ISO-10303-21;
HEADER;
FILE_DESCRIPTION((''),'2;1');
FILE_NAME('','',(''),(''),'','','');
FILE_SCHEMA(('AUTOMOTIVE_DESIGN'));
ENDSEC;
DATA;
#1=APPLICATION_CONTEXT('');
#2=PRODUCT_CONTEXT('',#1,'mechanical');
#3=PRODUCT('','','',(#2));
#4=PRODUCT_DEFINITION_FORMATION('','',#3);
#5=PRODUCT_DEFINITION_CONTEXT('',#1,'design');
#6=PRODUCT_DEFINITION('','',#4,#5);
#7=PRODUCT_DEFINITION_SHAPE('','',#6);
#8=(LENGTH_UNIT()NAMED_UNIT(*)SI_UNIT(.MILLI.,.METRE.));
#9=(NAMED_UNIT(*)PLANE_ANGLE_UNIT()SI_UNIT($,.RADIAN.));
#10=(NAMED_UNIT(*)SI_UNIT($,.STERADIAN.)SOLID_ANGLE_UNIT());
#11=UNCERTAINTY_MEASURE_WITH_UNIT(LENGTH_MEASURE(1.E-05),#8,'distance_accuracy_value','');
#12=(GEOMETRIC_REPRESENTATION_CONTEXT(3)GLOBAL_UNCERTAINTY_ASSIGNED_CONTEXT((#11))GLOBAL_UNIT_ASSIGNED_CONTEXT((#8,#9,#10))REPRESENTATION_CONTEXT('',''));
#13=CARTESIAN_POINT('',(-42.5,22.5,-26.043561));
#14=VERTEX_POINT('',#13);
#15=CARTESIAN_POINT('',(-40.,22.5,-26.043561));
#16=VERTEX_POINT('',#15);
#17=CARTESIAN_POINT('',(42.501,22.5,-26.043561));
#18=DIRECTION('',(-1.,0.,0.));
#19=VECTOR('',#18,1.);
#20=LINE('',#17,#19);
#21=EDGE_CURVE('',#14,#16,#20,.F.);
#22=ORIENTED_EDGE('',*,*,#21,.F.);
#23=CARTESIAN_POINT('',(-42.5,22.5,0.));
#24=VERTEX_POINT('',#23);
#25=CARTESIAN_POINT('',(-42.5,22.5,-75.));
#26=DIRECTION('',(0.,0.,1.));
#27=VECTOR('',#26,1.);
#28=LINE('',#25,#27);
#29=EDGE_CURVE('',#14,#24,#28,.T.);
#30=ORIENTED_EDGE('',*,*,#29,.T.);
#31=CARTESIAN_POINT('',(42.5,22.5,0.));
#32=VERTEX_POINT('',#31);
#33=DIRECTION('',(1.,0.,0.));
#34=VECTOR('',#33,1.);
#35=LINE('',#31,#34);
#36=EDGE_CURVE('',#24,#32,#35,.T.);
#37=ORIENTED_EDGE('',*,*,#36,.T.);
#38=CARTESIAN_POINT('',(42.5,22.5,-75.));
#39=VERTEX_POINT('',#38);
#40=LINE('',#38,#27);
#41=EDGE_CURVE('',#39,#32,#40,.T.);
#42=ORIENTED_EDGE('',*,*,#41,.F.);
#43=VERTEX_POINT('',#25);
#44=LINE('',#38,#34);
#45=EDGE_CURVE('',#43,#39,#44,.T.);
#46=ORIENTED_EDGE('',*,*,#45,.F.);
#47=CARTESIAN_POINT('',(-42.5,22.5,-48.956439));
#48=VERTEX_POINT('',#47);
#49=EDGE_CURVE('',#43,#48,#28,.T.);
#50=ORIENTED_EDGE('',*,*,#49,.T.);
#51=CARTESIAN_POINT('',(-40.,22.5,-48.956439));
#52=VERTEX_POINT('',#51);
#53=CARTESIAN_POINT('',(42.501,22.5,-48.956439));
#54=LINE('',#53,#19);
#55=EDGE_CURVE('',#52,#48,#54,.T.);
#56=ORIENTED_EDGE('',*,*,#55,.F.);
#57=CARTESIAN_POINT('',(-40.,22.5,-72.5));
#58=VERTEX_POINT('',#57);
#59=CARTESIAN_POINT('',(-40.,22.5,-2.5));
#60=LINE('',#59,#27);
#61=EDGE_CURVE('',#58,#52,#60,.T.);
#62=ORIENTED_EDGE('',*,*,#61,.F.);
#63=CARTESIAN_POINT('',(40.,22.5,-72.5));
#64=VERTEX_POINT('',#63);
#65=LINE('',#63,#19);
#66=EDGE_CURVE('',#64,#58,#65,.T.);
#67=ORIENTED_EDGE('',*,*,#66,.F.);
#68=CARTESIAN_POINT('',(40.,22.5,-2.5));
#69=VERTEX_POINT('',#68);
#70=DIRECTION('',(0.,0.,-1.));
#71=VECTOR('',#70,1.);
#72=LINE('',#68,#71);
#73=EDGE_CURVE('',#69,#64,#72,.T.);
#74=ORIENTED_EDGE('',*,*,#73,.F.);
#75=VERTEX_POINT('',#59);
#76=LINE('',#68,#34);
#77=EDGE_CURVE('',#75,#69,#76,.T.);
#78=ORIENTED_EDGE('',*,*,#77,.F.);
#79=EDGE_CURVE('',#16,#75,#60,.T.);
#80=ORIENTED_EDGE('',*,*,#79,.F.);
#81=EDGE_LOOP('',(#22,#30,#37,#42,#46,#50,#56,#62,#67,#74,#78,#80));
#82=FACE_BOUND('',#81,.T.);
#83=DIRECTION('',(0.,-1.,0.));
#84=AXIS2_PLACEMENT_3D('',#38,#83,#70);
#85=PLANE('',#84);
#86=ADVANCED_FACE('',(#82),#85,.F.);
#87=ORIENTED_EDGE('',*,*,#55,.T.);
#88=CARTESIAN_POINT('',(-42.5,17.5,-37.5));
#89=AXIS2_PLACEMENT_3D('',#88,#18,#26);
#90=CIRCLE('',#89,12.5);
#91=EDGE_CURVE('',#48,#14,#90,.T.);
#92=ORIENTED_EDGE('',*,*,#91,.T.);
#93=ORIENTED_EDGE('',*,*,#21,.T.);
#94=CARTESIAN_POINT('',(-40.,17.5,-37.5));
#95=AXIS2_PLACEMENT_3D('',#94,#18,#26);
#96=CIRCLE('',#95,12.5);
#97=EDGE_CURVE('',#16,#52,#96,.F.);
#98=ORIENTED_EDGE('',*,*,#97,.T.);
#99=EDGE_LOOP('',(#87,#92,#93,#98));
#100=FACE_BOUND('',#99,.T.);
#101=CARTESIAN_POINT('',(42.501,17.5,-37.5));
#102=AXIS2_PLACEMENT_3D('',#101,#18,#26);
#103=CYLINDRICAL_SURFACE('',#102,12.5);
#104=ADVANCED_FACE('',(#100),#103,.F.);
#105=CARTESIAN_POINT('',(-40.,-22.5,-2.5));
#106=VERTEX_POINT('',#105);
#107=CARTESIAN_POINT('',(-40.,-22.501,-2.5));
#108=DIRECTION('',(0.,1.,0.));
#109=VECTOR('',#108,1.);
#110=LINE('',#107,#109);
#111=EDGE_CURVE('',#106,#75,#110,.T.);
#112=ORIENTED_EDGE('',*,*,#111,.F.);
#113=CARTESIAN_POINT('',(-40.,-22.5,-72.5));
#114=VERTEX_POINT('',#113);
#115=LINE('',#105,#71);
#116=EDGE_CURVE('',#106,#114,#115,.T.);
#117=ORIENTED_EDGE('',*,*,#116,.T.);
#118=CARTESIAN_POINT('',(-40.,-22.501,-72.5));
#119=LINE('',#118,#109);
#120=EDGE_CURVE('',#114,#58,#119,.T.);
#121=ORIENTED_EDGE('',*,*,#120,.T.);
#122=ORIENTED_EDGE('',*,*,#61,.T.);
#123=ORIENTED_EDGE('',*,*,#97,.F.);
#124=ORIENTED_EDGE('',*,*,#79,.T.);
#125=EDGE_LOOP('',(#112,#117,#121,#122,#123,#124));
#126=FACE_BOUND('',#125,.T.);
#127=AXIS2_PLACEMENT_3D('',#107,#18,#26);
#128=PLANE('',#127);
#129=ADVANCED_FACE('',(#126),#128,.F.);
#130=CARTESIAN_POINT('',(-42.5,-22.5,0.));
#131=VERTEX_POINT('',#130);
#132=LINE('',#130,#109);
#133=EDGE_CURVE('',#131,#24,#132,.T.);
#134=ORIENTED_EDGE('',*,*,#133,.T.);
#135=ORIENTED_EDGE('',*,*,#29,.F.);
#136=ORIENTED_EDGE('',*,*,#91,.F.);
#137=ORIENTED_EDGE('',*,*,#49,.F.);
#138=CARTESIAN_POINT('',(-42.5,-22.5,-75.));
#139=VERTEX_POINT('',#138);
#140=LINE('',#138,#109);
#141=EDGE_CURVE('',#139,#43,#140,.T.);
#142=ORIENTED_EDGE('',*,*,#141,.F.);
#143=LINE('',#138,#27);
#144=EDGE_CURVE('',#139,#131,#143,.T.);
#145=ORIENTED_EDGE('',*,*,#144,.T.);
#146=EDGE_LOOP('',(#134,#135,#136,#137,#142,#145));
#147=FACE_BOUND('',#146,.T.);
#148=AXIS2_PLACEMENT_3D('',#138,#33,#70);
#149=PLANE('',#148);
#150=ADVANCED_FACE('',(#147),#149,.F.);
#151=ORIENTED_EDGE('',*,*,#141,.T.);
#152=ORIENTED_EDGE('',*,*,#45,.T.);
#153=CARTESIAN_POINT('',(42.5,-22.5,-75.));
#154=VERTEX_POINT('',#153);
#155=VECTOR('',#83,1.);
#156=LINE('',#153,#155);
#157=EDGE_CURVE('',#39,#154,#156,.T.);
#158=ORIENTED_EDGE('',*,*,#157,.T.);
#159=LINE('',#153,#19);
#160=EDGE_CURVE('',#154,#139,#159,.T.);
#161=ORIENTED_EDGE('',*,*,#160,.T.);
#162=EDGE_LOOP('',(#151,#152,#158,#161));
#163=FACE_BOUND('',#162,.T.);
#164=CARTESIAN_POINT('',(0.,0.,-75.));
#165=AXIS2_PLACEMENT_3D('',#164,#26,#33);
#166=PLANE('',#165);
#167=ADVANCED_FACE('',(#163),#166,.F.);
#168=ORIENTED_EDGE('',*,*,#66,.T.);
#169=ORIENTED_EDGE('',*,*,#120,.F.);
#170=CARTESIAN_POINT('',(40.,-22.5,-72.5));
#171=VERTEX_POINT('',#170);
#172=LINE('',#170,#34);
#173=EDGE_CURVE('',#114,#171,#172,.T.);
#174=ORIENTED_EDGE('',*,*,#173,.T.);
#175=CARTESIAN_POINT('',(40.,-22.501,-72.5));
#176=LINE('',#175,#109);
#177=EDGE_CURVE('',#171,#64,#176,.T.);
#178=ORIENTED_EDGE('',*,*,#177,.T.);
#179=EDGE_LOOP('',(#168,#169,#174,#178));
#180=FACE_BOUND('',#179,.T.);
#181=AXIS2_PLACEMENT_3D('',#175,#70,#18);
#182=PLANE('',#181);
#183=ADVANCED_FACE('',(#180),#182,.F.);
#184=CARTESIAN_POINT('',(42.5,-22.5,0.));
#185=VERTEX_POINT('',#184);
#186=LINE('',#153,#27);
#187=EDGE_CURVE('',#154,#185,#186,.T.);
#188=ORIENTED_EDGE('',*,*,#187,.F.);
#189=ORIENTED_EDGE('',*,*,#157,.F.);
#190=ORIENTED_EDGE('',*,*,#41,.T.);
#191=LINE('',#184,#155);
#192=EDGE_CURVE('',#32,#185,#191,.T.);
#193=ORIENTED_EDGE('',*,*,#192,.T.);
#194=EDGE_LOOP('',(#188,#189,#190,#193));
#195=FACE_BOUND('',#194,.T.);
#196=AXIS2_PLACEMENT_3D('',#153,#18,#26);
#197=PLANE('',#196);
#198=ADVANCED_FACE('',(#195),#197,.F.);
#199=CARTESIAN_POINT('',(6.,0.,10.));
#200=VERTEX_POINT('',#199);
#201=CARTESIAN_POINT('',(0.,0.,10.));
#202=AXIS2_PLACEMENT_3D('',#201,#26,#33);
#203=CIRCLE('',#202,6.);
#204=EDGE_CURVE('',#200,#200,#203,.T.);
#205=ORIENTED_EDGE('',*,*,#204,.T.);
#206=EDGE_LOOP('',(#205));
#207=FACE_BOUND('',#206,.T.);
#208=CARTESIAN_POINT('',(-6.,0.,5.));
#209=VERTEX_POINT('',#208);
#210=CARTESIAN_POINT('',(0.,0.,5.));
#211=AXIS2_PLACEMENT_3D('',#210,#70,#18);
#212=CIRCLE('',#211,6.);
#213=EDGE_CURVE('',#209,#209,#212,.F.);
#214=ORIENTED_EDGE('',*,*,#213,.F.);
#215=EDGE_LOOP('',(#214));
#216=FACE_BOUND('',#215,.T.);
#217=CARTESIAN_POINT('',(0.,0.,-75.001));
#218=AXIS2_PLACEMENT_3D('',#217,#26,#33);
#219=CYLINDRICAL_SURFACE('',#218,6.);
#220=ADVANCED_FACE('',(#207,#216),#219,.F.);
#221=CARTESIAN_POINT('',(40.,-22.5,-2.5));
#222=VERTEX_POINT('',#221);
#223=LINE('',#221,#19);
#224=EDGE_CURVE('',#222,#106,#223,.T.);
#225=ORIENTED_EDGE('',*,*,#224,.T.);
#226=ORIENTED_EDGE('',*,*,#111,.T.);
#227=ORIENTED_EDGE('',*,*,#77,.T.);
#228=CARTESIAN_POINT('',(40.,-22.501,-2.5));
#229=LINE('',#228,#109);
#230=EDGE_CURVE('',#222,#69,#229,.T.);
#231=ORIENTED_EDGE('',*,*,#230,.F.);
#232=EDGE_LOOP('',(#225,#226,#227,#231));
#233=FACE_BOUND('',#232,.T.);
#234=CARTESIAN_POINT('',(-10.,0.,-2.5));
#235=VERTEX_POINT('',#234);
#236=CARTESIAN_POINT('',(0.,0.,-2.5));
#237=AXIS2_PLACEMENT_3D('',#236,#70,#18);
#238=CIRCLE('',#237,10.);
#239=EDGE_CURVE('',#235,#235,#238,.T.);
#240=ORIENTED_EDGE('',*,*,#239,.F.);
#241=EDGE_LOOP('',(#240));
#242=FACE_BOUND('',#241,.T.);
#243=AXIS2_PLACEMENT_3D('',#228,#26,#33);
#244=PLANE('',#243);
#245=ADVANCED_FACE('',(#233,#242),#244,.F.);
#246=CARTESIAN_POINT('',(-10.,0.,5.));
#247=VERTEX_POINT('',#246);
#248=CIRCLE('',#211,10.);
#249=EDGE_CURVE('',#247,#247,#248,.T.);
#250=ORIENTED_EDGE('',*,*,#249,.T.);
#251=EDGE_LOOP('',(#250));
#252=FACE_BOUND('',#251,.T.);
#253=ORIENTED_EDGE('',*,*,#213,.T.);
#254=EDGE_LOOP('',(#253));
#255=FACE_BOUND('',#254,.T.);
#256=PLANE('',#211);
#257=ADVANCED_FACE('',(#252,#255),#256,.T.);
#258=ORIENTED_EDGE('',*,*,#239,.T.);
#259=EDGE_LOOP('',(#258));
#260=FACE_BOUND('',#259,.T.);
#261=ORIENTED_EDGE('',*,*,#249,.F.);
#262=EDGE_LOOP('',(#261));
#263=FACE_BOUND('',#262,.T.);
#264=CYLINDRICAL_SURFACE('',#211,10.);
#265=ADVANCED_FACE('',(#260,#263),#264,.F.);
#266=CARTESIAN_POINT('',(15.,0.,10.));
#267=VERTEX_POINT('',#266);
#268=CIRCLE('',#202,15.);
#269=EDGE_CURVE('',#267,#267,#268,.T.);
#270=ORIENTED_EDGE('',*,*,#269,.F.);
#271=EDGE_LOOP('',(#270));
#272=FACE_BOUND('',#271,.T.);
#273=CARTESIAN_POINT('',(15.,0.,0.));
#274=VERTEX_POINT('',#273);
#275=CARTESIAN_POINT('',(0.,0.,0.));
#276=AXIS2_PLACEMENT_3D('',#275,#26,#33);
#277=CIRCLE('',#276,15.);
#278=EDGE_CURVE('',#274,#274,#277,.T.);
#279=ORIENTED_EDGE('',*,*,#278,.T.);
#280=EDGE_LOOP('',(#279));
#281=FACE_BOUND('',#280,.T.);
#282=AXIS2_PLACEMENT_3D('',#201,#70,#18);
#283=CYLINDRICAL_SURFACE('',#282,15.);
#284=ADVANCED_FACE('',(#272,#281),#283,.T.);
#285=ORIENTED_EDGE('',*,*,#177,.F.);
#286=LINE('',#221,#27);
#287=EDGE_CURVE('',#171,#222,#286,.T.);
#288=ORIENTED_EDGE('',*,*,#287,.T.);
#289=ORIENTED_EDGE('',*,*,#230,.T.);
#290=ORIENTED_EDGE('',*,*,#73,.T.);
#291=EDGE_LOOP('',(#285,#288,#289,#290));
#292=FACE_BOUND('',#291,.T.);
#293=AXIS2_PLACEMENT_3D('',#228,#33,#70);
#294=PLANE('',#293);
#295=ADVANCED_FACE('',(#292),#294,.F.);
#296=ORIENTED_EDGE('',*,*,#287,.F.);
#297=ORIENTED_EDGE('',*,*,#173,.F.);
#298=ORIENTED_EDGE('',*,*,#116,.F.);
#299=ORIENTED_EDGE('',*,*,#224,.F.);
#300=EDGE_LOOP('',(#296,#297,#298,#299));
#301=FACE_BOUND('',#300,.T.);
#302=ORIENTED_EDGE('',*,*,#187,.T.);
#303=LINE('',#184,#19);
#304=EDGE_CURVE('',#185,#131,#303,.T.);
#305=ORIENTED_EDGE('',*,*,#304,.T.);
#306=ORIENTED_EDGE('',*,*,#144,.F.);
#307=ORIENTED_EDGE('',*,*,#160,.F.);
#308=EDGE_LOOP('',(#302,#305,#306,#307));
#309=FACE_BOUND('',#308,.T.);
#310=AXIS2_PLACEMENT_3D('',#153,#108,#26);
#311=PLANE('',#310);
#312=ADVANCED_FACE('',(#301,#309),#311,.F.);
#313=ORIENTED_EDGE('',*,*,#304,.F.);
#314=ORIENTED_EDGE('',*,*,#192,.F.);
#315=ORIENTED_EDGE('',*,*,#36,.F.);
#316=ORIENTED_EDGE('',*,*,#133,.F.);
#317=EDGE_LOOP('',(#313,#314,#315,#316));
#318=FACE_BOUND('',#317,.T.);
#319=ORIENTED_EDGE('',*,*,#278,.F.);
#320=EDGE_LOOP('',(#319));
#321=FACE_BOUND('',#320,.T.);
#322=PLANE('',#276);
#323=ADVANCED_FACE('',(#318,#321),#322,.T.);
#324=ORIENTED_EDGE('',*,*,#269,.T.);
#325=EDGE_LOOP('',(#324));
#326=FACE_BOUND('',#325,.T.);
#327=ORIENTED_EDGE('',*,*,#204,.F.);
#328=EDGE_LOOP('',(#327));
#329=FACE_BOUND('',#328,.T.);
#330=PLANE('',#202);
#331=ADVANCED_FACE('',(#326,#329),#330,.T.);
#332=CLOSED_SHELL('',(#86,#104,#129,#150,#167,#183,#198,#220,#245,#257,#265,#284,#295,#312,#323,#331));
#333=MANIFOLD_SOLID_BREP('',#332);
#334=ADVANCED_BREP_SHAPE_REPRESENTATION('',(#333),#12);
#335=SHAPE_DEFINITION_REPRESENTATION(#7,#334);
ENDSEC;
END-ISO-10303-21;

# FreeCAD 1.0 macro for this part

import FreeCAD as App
import Part
import Sketcher
Q = App.Units.Quantity


def add_polygon(sketch, points):
    """Adds a closed chain of lines whose ends are joined by coincident constraints."""
    first, n = sketch.GeometryCount, len(points)
    for a, b in zip(points, points[1:] + points[:1]):
        sketch.addGeometry(Part.LineSegment(App.Vector(*a, 0), App.Vector(*b, 0)), False)
    for i in range(n):
        sketch.addConstraint(Sketcher.Constraint("Coincident", first + i, 2, first + (i + 1) % n, 1))

doc = App.newDocument("Part")
body = doc.addObject("PartDesign::Body", "Body")

sketch1 = doc.addObject("Sketcher::SketchObject", "Sketch")
body.addObject(sketch1)
sketch1.AttachmentSupport = (doc.XY_Plane, [""])
sketch1.MapMode = "FlatFace"
sketch1.addGeometry(Part.Circle(App.Vector(0, 0, 0), App.Vector(0, 0, 1), 15), False)
sketch1.addConstraint([
    Sketcher.Constraint("Coincident", 0, 3, -1, 1),
    Sketcher.Constraint("Diameter", 0, Q("30 mm")),
])
pad1 = doc.addObject("PartDesign::Pad", "Pad")
body.addObject(pad1)
pad1.Profile = sketch1
pad1.Length = 10

sketch2 = doc.addObject("Sketcher::SketchObject", "Sketch001")
body.addObject(sketch2)
sketch2.AttachmentSupport = (doc.XY_Plane, [""])
sketch2.MapMode = "FlatFace"
add_polygon(sketch2, [(42, 22), (42, -22), (-42, -22), (-42, 22)])
sketch2.addConstraint([
    Sketcher.Constraint("Vertical", 0),
    Sketcher.Constraint("Horizontal", 1),
    Sketcher.Constraint("Vertical", 2),
    Sketcher.Constraint("Horizontal", 3),
    Sketcher.Constraint("Symmetric", 0, 2, 2, 2, -1, 1),
    Sketcher.Constraint("DistanceX", 1, 2, 1, 1, Q("85 mm")),
    Sketcher.Constraint("DistanceY", 0, 2, 0, 1, Q("45 mm")),
])
pad2 = doc.addObject("PartDesign::Pad", "Pad001")
body.addObject(pad2)
pad2.Profile = sketch2
pad2.Length = 75
pad2.Reversed = True

sketch3 = doc.addObject("Sketcher::SketchObject", "Sketch002")
body.addObject(sketch3)
sketch3.AttachmentSupport = (doc.XZ_Plane, [""])
sketch3.MapMode = "FlatFace"
sketch3.AttachmentOffset = App.Placement(App.Vector(0, 0, -22.5), App.Rotation())
add_polygon(sketch3, [(-40, -72), (-40, -2), (40, -2), (40, -72)])
sketch3.addConstraint([
    Sketcher.Constraint("Vertical", 0),
    Sketcher.Constraint("Horizontal", 1),
    Sketcher.Constraint("Vertical", 2),
    Sketcher.Constraint("Horizontal", 3),
    Sketcher.Constraint("DistanceX", 1, 1, 1, 2, Q("80 mm")),
    Sketcher.Constraint("DistanceY", 0, 1, 0, 2, Q("70 mm")),
    Sketcher.Constraint("DistanceX", 0, 2, -1, 1, Q("40 mm")),
    Sketcher.Constraint("DistanceY", 0, 2, -1, 1, Q("2.5 mm")),
])
pocket1 = doc.addObject("PartDesign::Pocket", "Pocket")
body.addObject(pocket1)
pocket1.Profile = sketch3
pocket1.Type = "UpToFirst"
pocket1.Reversed = True

sketch4 = doc.addObject("Sketcher::SketchObject", "Sketch003")
body.addObject(sketch4)
sketch4.AttachmentSupport = (doc.XY_Plane, [""])
sketch4.MapMode = "FlatFace"
sketch4.AttachmentOffset = App.Placement(App.Vector(0, 0, 10), App.Rotation())
sketch4.addGeometry(Part.Circle(App.Vector(0, 0, 0), App.Vector(0, 0, 1), 6), False)
sketch4.addConstraint([
    Sketcher.Constraint("Coincident", 0, 3, -1, 1),
    Sketcher.Constraint("Diameter", 0, Q("12 mm")),
])
pocket2 = doc.addObject("PartDesign::Pocket", "Pocket001")
body.addObject(pocket2)
pocket2.Profile = sketch4
pocket2.Type = "UpToFirst"

sketch5 = doc.addObject("Sketcher::SketchObject", "Sketch004")
body.addObject(sketch5)
sketch5.AttachmentSupport = (doc.XY_Plane, [""])
sketch5.MapMode = "FlatFace"
sketch5.AttachmentOffset = App.Placement(App.Vector(0, 0, -2.5), App.Rotation())
sketch5.addGeometry(Part.Circle(App.Vector(0, 0, 0), App.Vector(0, 0, 1), 10), False)
sketch5.addConstraint([
    Sketcher.Constraint("Coincident", 0, 3, -1, 1),
    Sketcher.Constraint("Diameter", 0, Q("20 mm")),
])
pocket3 = doc.addObject("PartDesign::Pocket", "Pocket002")
body.addObject(pocket3)
pocket3.Profile = sketch5
pocket3.Length = 7.5
pocket3.Reversed = True

sketch6 = doc.addObject("Sketcher::SketchObject", "Sketch005")
body.addObject(sketch6)
sketch6.AttachmentSupport = (doc.YZ_Plane, [""])
sketch6.MapMode = "FlatFace"
sketch6.AttachmentOffset = App.Placement(App.Vector(0, 0, -42.5), App.Rotation())
sketch6.addGeometry(Part.Circle(App.Vector(18, -38, 0), App.Vector(0, 0, 1), 12), False)
sketch6.addConstraint([
    Sketcher.Constraint("Diameter", 0, Q("25 mm")),
    Sketcher.Constraint("DistanceX", -1, 1, 0, 3, Q("17.5 mm")),
    Sketcher.Constraint("DistanceY", 0, 3, -1, 1, Q("37.5 mm")),
])
pocket4 = doc.addObject("PartDesign::Pocket", "Pocket003")
body.addObject(pocket4)
pocket4.Profile = sketch6
pocket4.Type = "UpToFirst"
pocket4.Reversed = True

doc.recompute()
